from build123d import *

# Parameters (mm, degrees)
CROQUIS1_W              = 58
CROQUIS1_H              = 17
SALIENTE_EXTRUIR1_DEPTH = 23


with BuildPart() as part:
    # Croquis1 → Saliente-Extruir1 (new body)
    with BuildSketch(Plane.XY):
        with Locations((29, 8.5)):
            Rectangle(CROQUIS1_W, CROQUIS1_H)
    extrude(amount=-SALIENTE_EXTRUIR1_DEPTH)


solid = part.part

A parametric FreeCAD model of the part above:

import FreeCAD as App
import Part
import Sketcher
from FreeCAD import Vector


def add_polygon(sketch, points):
    """Adds a closed chain of lines whose ends are joined by coincident constraints."""
    first, n = sketch.GeometryCount, len(points)
    for a, b in zip(points, points[1:] + points[:1]):
        sketch.addGeometry(Part.LineSegment(App.Vector(*a, 0), App.Vector(*b, 0)), False)
    for i in range(n):
        sketch.addConstraint(Sketcher.Constraint("Coincident", first + i, 2, first + (i + 1) % n, 1))

doc = App.newDocument("Part")
params = doc.addObject("Spreadsheet::Sheet", "Params")
for row, (alias, value) in enumerate([
    ("sketch1_width", "58 mm"),
    ("sketch1_height", "17 mm"),
    ("pad1_length", "23 mm"),
], start=1):
    params.set(f"A{row}", alias)
    params.set(f"B{row}", "=" + value)
    params.setAlias(f"B{row}", alias)

body = doc.addObject("PartDesign::Body", "Body")

sketch1 = body.newObject("Sketcher::SketchObject", "Sketch")
sketch1.AttachmentSupport = (doc.getObject("XY_Plane"), [""])
sketch1.MapMode = "FlatFace"
add_polygon(sketch1, [(0, 17), (0, 0), (58, 0), (58, 17)])
sketch1.addConstraint([
    Sketcher.Constraint("Vertical", 0),
    Sketcher.Constraint("Horizontal", 1),
    Sketcher.Constraint("Vertical", 2),
    Sketcher.Constraint("Horizontal", 3),
    Sketcher.Constraint("Coincident", 0, 2, -1, 1),
    Sketcher.Constraint("DistanceX", 1, 1, 1, 2, 58.0),
    Sketcher.Constraint("DistanceY", 0, 2, 0, 1, 17.0),
])
sketch1.setExpression("Constraints[9]", "Params.sketch1_width")
sketch1.setExpression("Constraints[10]", "Params.sketch1_height")
pad1 = body.newObject("PartDesign::Pad", "Pad")
pad1.Profile = sketch1
pad1.setExpression("Length", "Params.pad1_length")
pad1.Reversed = True

doc.recompute()
